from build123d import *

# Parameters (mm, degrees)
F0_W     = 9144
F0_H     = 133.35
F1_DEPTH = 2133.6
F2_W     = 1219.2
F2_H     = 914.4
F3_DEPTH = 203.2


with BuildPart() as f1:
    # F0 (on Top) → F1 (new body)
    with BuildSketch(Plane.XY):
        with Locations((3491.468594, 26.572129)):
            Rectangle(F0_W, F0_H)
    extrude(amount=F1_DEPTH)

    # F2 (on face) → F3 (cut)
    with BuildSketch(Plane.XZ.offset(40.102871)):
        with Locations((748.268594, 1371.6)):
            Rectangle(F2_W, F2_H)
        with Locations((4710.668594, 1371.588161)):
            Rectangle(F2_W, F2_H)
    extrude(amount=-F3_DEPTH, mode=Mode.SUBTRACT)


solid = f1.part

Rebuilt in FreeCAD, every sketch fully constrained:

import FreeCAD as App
import Part
import Sketcher
from FreeCAD import Vector
Q = App.Units.Quantity


def add_polygon(sketch, points):
    """Adds a closed chain of lines whose ends are joined by coincident constraints."""
    first, n = sketch.GeometryCount, len(points)
    for a, b in zip(points, points[1:] + points[:1]):
        sketch.addGeometry(Part.LineSegment(App.Vector(*a, 0), App.Vector(*b, 0)), False)
    for i in range(n):
        sketch.addConstraint(Sketcher.Constraint("Coincident", first + i, 2, first + (i + 1) % n, 1))

doc = App.newDocument("Part")
params = doc.addObject("Spreadsheet::Sheet", "Params")
for row, (alias, value) in enumerate([
    ("sketch1_width", "360 in"),
    ("sketch1_height", "5.25 in"),
    ("pad1_length", "84 in"),
    ("sketch2_width", "48 in"),
    ("sketch2_height", "36 in"),
    ("pocket1_length", "8 in"),
], start=1):
    params.set(f"A{row}", alias)
    params.set(f"B{row}", "=" + value)
    params.setAlias(f"B{row}", alias)

body = doc.addObject("PartDesign::Body", "Body")

sketch1 = doc.addObject("Sketcher::SketchObject", "Sketch")
body.addObject(sketch1)
sketch1.AttachmentSupport = (doc.XY_Plane, [""])
sketch1.MapMode = "FlatFace"
add_polygon(sketch1, [(-1080.531406, 93.247129), (-1080.531406, -40.102871), (8063.468594, -40.102871), (8063.468594, 93.247129)])
sketch1.addConstraint([
    Sketcher.Constraint("Vertical", 0),
    Sketcher.Constraint("Horizontal", 1),
    Sketcher.Constraint("Vertical", 2),
    Sketcher.Constraint("Horizontal", 3),
    Sketcher.Constraint("DistanceX", 1, 1, 1, 2, Q("360 in")),
    Sketcher.Constraint("DistanceY", 0, 2, 0, 1, Q("5.25 in")),
    Sketcher.Constraint("DistanceY", 0, 2, -1, 1, 40.102871),
    Sketcher.Constraint("DistanceX", 0, 2, -1, 1, 1080.531406),
])
sketch1.setExpression("Constraints[8]", "Params.sketch1_width")
sketch1.setExpression("Constraints[9]", "Params.sketch1_height")
pad1 = doc.addObject("PartDesign::Pad", "Pad")
body.addObject(pad1)
pad1.Profile = sketch1
pad1.setExpression("Length", "Params.pad1_length")

sketch2 = doc.addObject("Sketcher::SketchObject", "Sketch001")
body.addObject(sketch2)
sketch2.AttachmentSupport = (doc.XZ_Plane, [""])
sketch2.MapMode = "FlatFace"
sketch2.AttachmentOffset = App.Placement(Vector(0, 0, 40.102871), App.Rotation())
add_polygon(sketch2, [(138.668594, 1828.8), (138.668594, 914.4), (1357.868594, 914.4), (1357.868594, 1828.8)])
add_polygon(sketch2, [(4101.068594, 1828.788161), (4101.068594, 914.388161), (5320.268594, 914.388161), (5320.268594, 1828.788161)])
sketch2.addConstraint([
    Sketcher.Constraint("Vertical", 0),
    Sketcher.Constraint("Horizontal", 1),
    Sketcher.Constraint("Vertical", 2),
    Sketcher.Constraint("Horizontal", 3),
    Sketcher.Constraint("Vertical", 4),
    Sketcher.Constraint("Horizontal", 5),
    Sketcher.Constraint("Vertical", 6),
    Sketcher.Constraint("Horizontal", 7),
    Sketcher.Constraint("Equal", 3, 5),
    Sketcher.Constraint("Equal", 2, 4),
    Sketcher.Constraint("DistanceX", 1, 1, 1, 2, Q("48 in")),
    Sketcher.Constraint("DistanceY", 0, 2, 0, 1, Q("36 in")),
    Sketcher.Constraint("DistanceY", -1, 1, 0, 2, Q("36 in")),
    Sketcher.Constraint("DistanceX", 1, 2, 4, 2, Q("108 in")),
    Sketcher.Constraint("DistanceY", -1, 1, 4, 2, 914.388161),
    Sketcher.Constraint("DistanceX", -1, 1, 0, 2, 138.668594),
])
sketch2.setExpression("Constraints[18]", "Params.sketch2_width")
sketch2.setExpression("Constraints[19]", "Params.sketch2_height")
pocket1 = doc.addObject("PartDesign::Pocket", "Pocket")
body.addObject(pocket1)
pocket1.Profile = sketch2
pocket1.setExpression("Length", "Params.pocket1_length")

doc.recompute()
